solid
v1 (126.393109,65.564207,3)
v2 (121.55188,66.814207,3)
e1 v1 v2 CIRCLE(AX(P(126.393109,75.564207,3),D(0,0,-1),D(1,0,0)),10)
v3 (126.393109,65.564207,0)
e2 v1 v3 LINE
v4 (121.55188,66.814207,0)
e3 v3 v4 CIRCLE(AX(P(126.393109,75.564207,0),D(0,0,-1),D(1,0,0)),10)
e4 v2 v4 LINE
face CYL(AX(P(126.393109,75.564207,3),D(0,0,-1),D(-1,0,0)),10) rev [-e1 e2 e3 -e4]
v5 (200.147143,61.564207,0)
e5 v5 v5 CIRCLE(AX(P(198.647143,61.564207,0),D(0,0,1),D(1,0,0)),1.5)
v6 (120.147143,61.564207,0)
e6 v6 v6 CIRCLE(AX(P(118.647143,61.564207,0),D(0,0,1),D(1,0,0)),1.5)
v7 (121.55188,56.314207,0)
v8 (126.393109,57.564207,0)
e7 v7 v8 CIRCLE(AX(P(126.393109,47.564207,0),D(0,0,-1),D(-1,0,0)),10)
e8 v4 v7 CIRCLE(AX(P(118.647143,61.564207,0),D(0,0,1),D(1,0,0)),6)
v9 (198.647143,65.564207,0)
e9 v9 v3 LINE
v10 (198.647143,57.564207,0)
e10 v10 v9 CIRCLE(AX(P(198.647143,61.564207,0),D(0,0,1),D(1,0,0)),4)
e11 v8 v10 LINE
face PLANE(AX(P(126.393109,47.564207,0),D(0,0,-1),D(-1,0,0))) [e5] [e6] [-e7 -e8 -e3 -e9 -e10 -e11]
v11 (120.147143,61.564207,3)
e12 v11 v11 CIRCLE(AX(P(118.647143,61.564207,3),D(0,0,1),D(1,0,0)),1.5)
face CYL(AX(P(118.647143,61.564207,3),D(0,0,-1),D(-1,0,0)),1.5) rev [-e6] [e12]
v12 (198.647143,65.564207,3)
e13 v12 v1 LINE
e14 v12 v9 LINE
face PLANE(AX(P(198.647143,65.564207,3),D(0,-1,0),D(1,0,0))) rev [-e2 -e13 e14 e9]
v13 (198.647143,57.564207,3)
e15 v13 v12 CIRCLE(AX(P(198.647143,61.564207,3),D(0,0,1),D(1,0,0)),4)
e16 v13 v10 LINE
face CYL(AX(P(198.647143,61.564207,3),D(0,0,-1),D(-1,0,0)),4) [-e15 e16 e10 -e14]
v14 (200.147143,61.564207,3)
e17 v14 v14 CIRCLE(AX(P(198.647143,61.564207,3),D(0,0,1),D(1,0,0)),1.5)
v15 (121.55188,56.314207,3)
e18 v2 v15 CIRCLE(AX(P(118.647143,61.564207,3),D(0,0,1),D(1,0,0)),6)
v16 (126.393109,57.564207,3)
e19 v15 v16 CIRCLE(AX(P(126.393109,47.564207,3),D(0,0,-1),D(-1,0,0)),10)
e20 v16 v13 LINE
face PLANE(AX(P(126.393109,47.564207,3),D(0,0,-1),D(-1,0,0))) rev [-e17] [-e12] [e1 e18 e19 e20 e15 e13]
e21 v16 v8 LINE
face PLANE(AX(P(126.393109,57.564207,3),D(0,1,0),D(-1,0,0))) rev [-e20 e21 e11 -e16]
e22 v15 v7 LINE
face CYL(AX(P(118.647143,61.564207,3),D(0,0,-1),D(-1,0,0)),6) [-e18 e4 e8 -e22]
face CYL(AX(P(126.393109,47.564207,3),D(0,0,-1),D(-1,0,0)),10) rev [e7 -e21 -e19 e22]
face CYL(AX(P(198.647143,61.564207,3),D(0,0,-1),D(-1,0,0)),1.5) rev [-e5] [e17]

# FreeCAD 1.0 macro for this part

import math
import FreeCAD as App
import Part
import Sketcher

V = App.Vector
Q = App.Units.Quantity

doc = App.newDocument("Part")
params = doc.addObject("Spreadsheet::Sheet", "Params")
for row, (alias, value) in enumerate([
    ("sketch1_diameter", "3 mm"),
    ("sketch1_radius", "10 mm"),
    ("sketch1_radius2", "6 mm"),
    ("sketch1_radius3", "4 mm"),
    ("pad1_length", "3 mm"),
], start=1):
    params.set(f"A{row}", alias)
    params.set(f"B{row}", "=" + value)
    params.setAlias(f"B{row}", alias)

body = doc.addObject("PartDesign::Body", "Body")

sketch1 = body.newObject("Sketcher::SketchObject", "Sketch")
sketch1.AttachmentSupport = (doc.getObject("XY_Plane"), [""])
sketch1.MapMode = "FlatFace"
sketch1.addGeometry([
    Part.LineSegment(V(198.6, 65.6, 0), V(126.4, 65.6, 0)),
    Part.ArcOfCircle(Part.Circle(V(126.4, 75.6, 0), V(0, 0, 1), 10), math.radians(-119), math.radians(-90)),
    Part.ArcOfCircle(Part.Circle(V(118.6, 61.6, 0), V(0, 0, 1), 6), math.radians(61), math.radians(299)),
    Part.ArcOfCircle(Part.Circle(V(126.4, 47.6, 0), V(0, 0, 1), 10), math.radians(90), math.radians(119)),
    Part.LineSegment(V(126.4, 57.6, 0), V(198.6, 57.6, 0)),
    Part.ArcOfCircle(Part.Circle(V(198.6, 61.6, 0), V(0, 0, 1), 4), math.radians(-90), math.radians(90)),
    Part.Circle(V(118.6, 61.6, 0), V(0, 0, 1), 1.5),
    Part.Circle(V(198.6, 61.6, 0), V(0, 0, 1), 1.5),
], False)
sketch1.addConstraint([
    Sketcher.Constraint("Tangent", 0, 2, 1, 2),
    Sketcher.Constraint("Tangent", 1, 1, 2, 1),
    Sketcher.Constraint("Tangent", 2, 2, 3, 2),
    Sketcher.Constraint("Tangent", 3, 1, 4, 1),
    Sketcher.Constraint("Tangent", 4, 2, 5, 1),
    Sketcher.Constraint("Tangent", 5, 2, 0, 1),
    Sketcher.Constraint("Horizontal", 0),
    Sketcher.Constraint("Horizontal", 4),
    Sketcher.Constraint("Coincident", 6, 3, 2, 3),
    Sketcher.Constraint("Coincident", 7, 3, 5, 3),
    Sketcher.Constraint("Equal", 1, 3),
    Sketcher.Constraint("Equal", 6, 7),
    Sketcher.Constraint("Horizontal", 2, 3, 5, 3),
    Sketcher.Constraint("Diameter", 6, Q("3 mm")),
    Sketcher.Constraint("Radius", 1, Q("10 mm")),
    Sketcher.Constraint("Radius", 2, Q("6 mm")),
    Sketcher.Constraint("Radius", 5, Q("4 mm")),
    Sketcher.Constraint("DistanceX", 2, 3, 5, 3, Q("80 mm")),
    Sketcher.Constraint("DistanceX", -1, 1, 1, 3, Q("126.393109 mm")),
    Sketcher.Constraint("DistanceY", -1, 1, 1, 3, Q("75.564207 mm")),
])
sketch1.setExpression("Constraints[13]", "Params.sketch1_diameter")
sketch1.setExpression("Constraints[14]", "Params.sketch1_radius")
sketch1.setExpression("Constraints[15]", "Params.sketch1_radius2")
sketch1.setExpression("Constraints[16]", "Params.sketch1_radius3")
pad1 = body.newObject("PartDesign::Pad", "Pad")
pad1.Profile = sketch1
pad1.setExpression("Length", "Params.pad1_length")

doc.recompute()
